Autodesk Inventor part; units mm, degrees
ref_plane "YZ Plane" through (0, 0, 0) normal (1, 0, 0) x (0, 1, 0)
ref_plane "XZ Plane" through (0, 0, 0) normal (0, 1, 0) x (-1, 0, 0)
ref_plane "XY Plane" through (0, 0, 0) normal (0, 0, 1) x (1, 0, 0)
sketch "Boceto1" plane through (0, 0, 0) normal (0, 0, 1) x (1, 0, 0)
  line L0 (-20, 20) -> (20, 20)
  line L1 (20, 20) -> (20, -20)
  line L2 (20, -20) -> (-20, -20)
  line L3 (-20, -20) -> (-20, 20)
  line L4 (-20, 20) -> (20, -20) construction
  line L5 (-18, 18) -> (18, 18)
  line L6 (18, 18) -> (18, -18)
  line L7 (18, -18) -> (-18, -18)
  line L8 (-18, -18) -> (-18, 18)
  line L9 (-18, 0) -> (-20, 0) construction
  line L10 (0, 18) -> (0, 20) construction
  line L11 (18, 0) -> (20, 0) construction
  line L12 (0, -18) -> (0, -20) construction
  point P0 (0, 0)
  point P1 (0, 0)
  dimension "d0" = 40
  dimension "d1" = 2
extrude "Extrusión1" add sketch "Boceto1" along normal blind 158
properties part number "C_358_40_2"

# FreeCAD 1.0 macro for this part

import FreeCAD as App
import Part
import Sketcher
Q = App.Units.Quantity


def add_polygon(sketch, points):
    """Adds a closed chain of lines whose ends are joined by coincident constraints."""
    first, n = sketch.GeometryCount, len(points)
    for a, b in zip(points, points[1:] + points[:1]):
        sketch.addGeometry(Part.LineSegment(App.Vector(*a, 0), App.Vector(*b, 0)), False)
    for i in range(n):
        sketch.addConstraint(Sketcher.Constraint("Coincident", first + i, 2, first + (i + 1) % n, 1))

doc = App.newDocument("Part")
params = doc.addObject("Spreadsheet::Sheet", "Params")
for row, (alias, value) in enumerate([
    ("sketch1_width", "40 mm"),
    ("pad1_length", "158 mm"),
], start=1):
    params.set(f"A{row}", alias)
    params.set(f"B{row}", "=" + value)
    params.setAlias(f"B{row}", alias)

body = doc.addObject("PartDesign::Body", "Body")

sketch1 = body.newObject("Sketcher::SketchObject", "Sketch")
sketch1.AttachmentSupport = (doc.getObject("XY_Plane"), [""])
sketch1.MapMode = "FlatFace"
add_polygon(sketch1, [(20, 20), (-20, 20), (-20, -20), (20, -20)])
add_polygon(sketch1, [(-18, -18), (-18, 18), (18, 18), (18, -18)])
sketch1.addConstraint(Sketcher.Constraint("Horizontal", 0))
sketch1.addConstraint(Sketcher.Constraint("Vertical", 1))
sketch1.addConstraint(Sketcher.Constraint("Horizontal", 2))
sketch1.addConstraint(Sketcher.Constraint("Vertical", 3))
sketch1.addConstraint(Sketcher.Constraint("Vertical", 4))
sketch1.addConstraint(Sketcher.Constraint("Horizontal", 5))
sketch1.addConstraint(Sketcher.Constraint("Vertical", 6))
sketch1.addConstraint(Sketcher.Constraint("Horizontal", 7))
sketch1.addConstraint(Sketcher.Constraint("Symmetric", 0, 2, 2, 2, -1, 1))
sketch1.addConstraint(Sketcher.Constraint("Symmetric", 4, 2, 6, 2, -1, 1))
sketch1.addConstraint(Sketcher.Constraint("Equal", 2, 1))
sketch1.addConstraint(Sketcher.Constraint("Equal", 7, 4))
sketch1.addConstraint(Sketcher.Constraint("DistanceX", 0, 2, 0, 1, Q("40 mm")))
sketch1.addConstraint(Sketcher.Constraint("DistanceX", 0, 2, 4, 2, Q("2 mm")))
sketch1.setExpression("Constraints[20]", "Params.sketch1_width")
pad1 = body.newObject("PartDesign::Pad", "Pad")
pad1.Profile = sketch1
pad1.setExpression("Length", "Params.pad1_length")

doc.recompute()
